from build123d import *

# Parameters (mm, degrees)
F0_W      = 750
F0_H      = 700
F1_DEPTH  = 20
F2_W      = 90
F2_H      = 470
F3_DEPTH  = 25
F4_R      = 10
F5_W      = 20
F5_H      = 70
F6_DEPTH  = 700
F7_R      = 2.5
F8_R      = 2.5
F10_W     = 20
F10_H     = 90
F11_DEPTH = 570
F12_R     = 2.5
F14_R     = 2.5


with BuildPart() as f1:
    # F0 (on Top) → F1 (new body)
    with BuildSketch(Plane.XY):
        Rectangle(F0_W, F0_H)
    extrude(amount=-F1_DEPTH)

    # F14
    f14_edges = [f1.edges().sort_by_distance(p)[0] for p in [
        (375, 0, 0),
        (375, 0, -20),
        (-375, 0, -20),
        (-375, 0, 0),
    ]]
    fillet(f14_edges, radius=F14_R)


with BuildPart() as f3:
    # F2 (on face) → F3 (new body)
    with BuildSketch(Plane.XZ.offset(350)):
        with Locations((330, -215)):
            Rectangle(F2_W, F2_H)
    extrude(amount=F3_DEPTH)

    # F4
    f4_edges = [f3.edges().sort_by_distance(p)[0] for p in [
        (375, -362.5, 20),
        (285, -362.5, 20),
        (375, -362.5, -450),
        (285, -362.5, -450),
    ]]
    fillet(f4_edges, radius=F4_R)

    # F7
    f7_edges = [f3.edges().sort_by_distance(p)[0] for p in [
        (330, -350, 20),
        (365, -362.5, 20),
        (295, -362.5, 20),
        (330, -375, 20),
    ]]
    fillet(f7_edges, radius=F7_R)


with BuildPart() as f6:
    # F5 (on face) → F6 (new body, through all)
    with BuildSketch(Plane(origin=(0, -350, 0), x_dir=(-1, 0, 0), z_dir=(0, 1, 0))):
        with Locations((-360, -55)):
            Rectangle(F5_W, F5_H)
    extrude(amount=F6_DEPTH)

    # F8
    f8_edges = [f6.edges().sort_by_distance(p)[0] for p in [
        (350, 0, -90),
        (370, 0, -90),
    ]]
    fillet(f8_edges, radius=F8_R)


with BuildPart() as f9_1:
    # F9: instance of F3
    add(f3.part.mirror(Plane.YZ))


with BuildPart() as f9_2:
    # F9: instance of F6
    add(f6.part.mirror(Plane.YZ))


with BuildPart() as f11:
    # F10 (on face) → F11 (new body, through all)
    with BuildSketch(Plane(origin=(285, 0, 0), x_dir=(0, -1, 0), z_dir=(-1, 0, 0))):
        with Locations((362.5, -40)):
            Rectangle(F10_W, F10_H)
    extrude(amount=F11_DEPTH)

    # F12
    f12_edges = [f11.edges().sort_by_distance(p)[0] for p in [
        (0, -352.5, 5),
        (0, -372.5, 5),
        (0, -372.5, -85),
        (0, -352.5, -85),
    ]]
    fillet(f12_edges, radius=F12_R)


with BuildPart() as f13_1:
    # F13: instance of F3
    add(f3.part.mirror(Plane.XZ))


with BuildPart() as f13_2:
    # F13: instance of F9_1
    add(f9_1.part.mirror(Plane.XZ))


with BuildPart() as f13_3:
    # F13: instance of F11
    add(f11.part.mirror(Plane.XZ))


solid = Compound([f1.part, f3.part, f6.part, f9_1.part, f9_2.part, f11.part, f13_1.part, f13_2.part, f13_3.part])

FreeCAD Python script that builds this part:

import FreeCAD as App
import Part
import Sketcher

V = App.Vector


def edges_at(feature, points):
    """Names of the edges that pass closest to the given points."""
    edges = feature.Shape.Edges
    near = lambda p: min(range(len(edges)), key=lambda i: edges[i].distToShape(Part.Vertex(*p))[0])
    return sorted({f"Edge{near(p) + 1}" for p in points})

doc = App.newDocument("Part")
body = doc.addObject("PartDesign::Body", "Body")

# Sketch on XY plane
sketch1 = body.newObject("Sketcher::SketchObject", "Sketch")
sketch1.AttachmentSupport = (doc.getObject("XY_Plane"), [""])
sketch1.MapMode = "FlatFace"
sketch1.addGeometry(Part.LineSegment(V(-375, 350, 0), V(-375, -350, 0)), False)
sketch1.addGeometry(Part.LineSegment(V(-375, -350, 0), V(375, -350, 0)), False)
sketch1.addGeometry(Part.LineSegment(V(375, -350, 0), V(375, 350, 0)), False)
sketch1.addGeometry(Part.LineSegment(V(375, 350, 0), V(-375, 350, 0)), False)
sketch1.addConstraint(Sketcher.Constraint("Coincident", 0, 2, 1, 1))
sketch1.addConstraint(Sketcher.Constraint("Coincident", 1, 2, 2, 1))
sketch1.addConstraint(Sketcher.Constraint("Coincident", 2, 2, 3, 1))
sketch1.addConstraint(Sketcher.Constraint("Coincident", 3, 2, 0, 1))
sketch1.addConstraint(Sketcher.Constraint("Vertical", 0))
sketch1.addConstraint(Sketcher.Constraint("Horizontal", 1))
sketch1.addConstraint(Sketcher.Constraint("Vertical", 2))
sketch1.addConstraint(Sketcher.Constraint("Horizontal", 3))
sketch1.addConstraint(Sketcher.Constraint("Symmetric", 0, 2, 2, 2, -1, 1))
sketch1.addConstraint(Sketcher.Constraint("DistanceX", 1, 1, 1, 2, 750.0))
sketch1.addConstraint(Sketcher.Constraint("DistanceY", 0, 2, 0, 1, 700.0))
pad1 = body.newObject("PartDesign::Pad", "Pad")
pad1.Profile = sketch1
pad1.Length = 20
pad1.Reversed = True
doc.recompute()

fillet = body.newObject("PartDesign::Fillet", "Fillet")
fillet.Base = (pad1, edges_at(pad1, [
    (375, 0, 0),
    (375, 0, -20),
    (-375, 0, -20),
    (-375, 0, 0),
]))
fillet.Radius = 2.5
body2 = doc.addObject("PartDesign::Body", "Body001")

# Sketch on XZ plane
sketch2 = body2.newObject("Sketcher::SketchObject", "Sketch001")
sketch2.AttachmentSupport = (doc.getObject("XZ_Plane001"), [""])
sketch2.MapMode = "FlatFace"
sketch2.AttachmentOffset = App.Placement(V(0, 0, 350), App.Rotation())
sketch2.addGeometry(Part.LineSegment(V(285, 20, 0), V(285, -450, 0)), False)
sketch2.addGeometry(Part.LineSegment(V(285, -450, 0), V(375, -450, 0)), False)
sketch2.addGeometry(Part.LineSegment(V(375, -450, 0), V(375, 20, 0)), False)
sketch2.addGeometry(Part.LineSegment(V(375, 20, 0), V(285, 20, 0)), False)
sketch2.addConstraint(Sketcher.Constraint("Coincident", 0, 2, 1, 1))
sketch2.addConstraint(Sketcher.Constraint("Coincident", 1, 2, 2, 1))
sketch2.addConstraint(Sketcher.Constraint("Coincident", 2, 2, 3, 1))
sketch2.addConstraint(Sketcher.Constraint("Coincident", 3, 2, 0, 1))
sketch2.addConstraint(Sketcher.Constraint("Vertical", 0))
sketch2.addConstraint(Sketcher.Constraint("Horizontal", 1))
sketch2.addConstraint(Sketcher.Constraint("Vertical", 2))
sketch2.addConstraint(Sketcher.Constraint("Horizontal", 3))
sketch2.addConstraint(Sketcher.Constraint("DistanceX", 1, 1, 1, 2, 90.0))
sketch2.addConstraint(Sketcher.Constraint("DistanceY", 0, 2, 0, 1, 470.0))
sketch2.addConstraint(Sketcher.Constraint("DistanceX", -1, 1, 0, 2, 285.0))
sketch2.addConstraint(Sketcher.Constraint("DistanceY", 0, 2, -1, 1, 450.0))
pad2 = body2.newObject("PartDesign::Pad", "Pad001")
pad2.Profile = sketch2
pad2.Length = 25
doc.recompute()

fillet2 = body2.newObject("PartDesign::Fillet", "Fillet001")
fillet2.Base = (pad2, edges_at(pad2, [
    (375, -362.5, 20),
    (285, -362.5, 20),
    (375, -362.5, -450),
    (285, -362.5, -450),
]))
fillet2.Radius = 10
doc.recompute()

fillet3 = body2.newObject("PartDesign::Fillet", "Fillet002")
fillet3.Base = (fillet2, edges_at(fillet2, [
    (330, -350, 20),
    (365, -362.5, 20),
    (295, -362.5, 20),
    (330, -375, 20),
]))
fillet3.Radius = 2.5
body3 = doc.addObject("PartDesign::Body", "Body002")

# Sketch on XZ plane
sketch3 = body3.newObject("Sketcher::SketchObject", "Sketch002")
sketch3.AttachmentSupport = (doc.getObject("XZ_Plane002"), [""])
sketch3.MapMode = "FlatFace"
sketch3.AttachmentOffset = App.Placement(V(0, 0, 350), App.Rotation())
sketch3.addGeometry(Part.LineSegment(V(370, -20, 0), V(370, -90, 0)), False)
sketch3.addGeometry(Part.LineSegment(V(370, -90, 0), V(350, -90, 0)), False)
sketch3.addGeometry(Part.LineSegment(V(350, -90, 0), V(350, -20, 0)), False)
sketch3.addGeometry(Part.LineSegment(V(350, -20, 0), V(370, -20, 0)), False)
sketch3.addConstraint(Sketcher.Constraint("Coincident", 0, 2, 1, 1))
sketch3.addConstraint(Sketcher.Constraint("Coincident", 1, 2, 2, 1))
sketch3.addConstraint(Sketcher.Constraint("Coincident", 2, 2, 3, 1))
sketch3.addConstraint(Sketcher.Constraint("Coincident", 3, 2, 0, 1))
sketch3.addConstraint(Sketcher.Constraint("Vertical", 0))
sketch3.addConstraint(Sketcher.Constraint("Horizontal", 1))
sketch3.addConstraint(Sketcher.Constraint("Vertical", 2))
sketch3.addConstraint(Sketcher.Constraint("Horizontal", 3))
sketch3.addConstraint(Sketcher.Constraint("DistanceX", 1, 2, 1, 1, 20.0))
sketch3.addConstraint(Sketcher.Constraint("DistanceY", 0, 2, 0, 1, 70.0))
sketch3.addConstraint(Sketcher.Constraint("DistanceX", -1, 1, 0, 2, 370.0))
sketch3.addConstraint(Sketcher.Constraint("DistanceY", 0, 2, -1, 1, 90.0))
pad3 = body3.newObject("PartDesign::Pad", "Pad002")
pad3.Profile = sketch3
pad3.Length = 700
pad3.Reversed = True
doc.recompute()

fillet4 = body3.newObject("PartDesign::Fillet", "Fillet003")
fillet4.Base = (pad3, edges_at(pad3, [(350, 0, -90), (370, 0, -90)]))
fillet4.Radius = 2.5
body4 = doc.addObject("PartDesign::Body", "Body003")
doc.recompute()

mirroring = doc.addObject("Part::Mirroring", "Mirroring")
mirroring.Source = body2
mirroring.Base = V(0, 0, 0)
mirroring.Normal = V(1, 0, 0)
body4.BaseFeature = mirroring
doc.recompute()
body5 = doc.addObject("PartDesign::Body", "Body004")
doc.recompute()

mirroring2 = doc.addObject("Part::Mirroring", "Mirroring001")
mirroring2.Source = body3
mirroring2.Base = V(0, 0, 0)
mirroring2.Normal = V(1, 0, 0)
body5.BaseFeature = mirroring2
doc.recompute()
body6 = doc.addObject("PartDesign::Body", "Body005")

# Sketch on YZ plane
sketch4 = body6.newObject("Sketcher::SketchObject", "Sketch003")
sketch4.AttachmentSupport = (doc.getObject("YZ_Plane005"), [""])
sketch4.MapMode = "FlatFace"
sketch4.AttachmentOffset = App.Placement(V(0, 0, 285), App.Rotation())
sketch4.addGeometry(Part.LineSegment(V(-352.5, 5, 0), V(-352.5, -85, 0)), False)
sketch4.addGeometry(Part.LineSegment(V(-352.5, -85, 0), V(-372.5, -85, 0)), False)
sketch4.addGeometry(Part.LineSegment(V(-372.5, -85, 0), V(-372.5, 5, 0)), False)
sketch4.addGeometry(Part.LineSegment(V(-372.5, 5, 0), V(-352.5, 5, 0)), False)
sketch4.addConstraint(Sketcher.Constraint("Coincident", 0, 2, 1, 1))
sketch4.addConstraint(Sketcher.Constraint("Coincident", 1, 2, 2, 1))
sketch4.addConstraint(Sketcher.Constraint("Coincident", 2, 2, 3, 1))
sketch4.addConstraint(Sketcher.Constraint("Coincident", 3, 2, 0, 1))
sketch4.addConstraint(Sketcher.Constraint("Vertical", 0))
sketch4.addConstraint(Sketcher.Constraint("Horizontal", 1))
sketch4.addConstraint(Sketcher.Constraint("Vertical", 2))
sketch4.addConstraint(Sketcher.Constraint("Horizontal", 3))
sketch4.addConstraint(Sketcher.Constraint("DistanceX", 1, 2, 1, 1, 20.0))
sketch4.addConstraint(Sketcher.Constraint("DistanceY", 0, 2, 0, 1, 90.0))
sketch4.addConstraint(Sketcher.Constraint("DistanceY", 0, 2, -1, 1, 85.0))
sketch4.addConstraint(Sketcher.Constraint("DistanceX", 0, 2, -1, 1, 352.5))
pad4 = body6.newObject("PartDesign::Pad", "Pad003")
pad4.Profile = sketch4
pad4.Length = 570
pad4.Reversed = True
doc.recompute()

fillet5 = body6.newObject("PartDesign::Fillet", "Fillet004")
fillet5.Base = (pad4, edges_at(pad4, [
    (0, -352.5, 5),
    (0, -372.5, 5),
    (0, -372.5, -85),
    (0, -352.5, -85),
]))
fillet5.Radius = 2.5
body7 = doc.addObject("PartDesign::Body", "Body006")
doc.recompute()

mirroring3 = doc.addObject("Part::Mirroring", "Mirroring002")
mirroring3.Source = body2
mirroring3.Base = V(0, 0, 0)
mirroring3.Normal = V(0, -1, 0)
body7.BaseFeature = mirroring3
doc.recompute()
body8 = doc.addObject("PartDesign::Body", "Body007")
doc.recompute()

mirroring4 = doc.addObject("Part::Mirroring", "Mirroring003")
mirroring4.Source = body4
mirroring4.Base = V(0, 0, 0)
mirroring4.Normal = V(0, -1, 0)
body8.BaseFeature = mirroring4
doc.recompute()
body9 = doc.addObject("PartDesign::Body", "Body008")
doc.recompute()

mirroring5 = doc.addObject("Part::Mirroring", "Mirroring004")
mirroring5.Source = body6
mirroring5.Base = V(0, 0, 0)
mirroring5.Normal = V(0, -1, 0)
body9.BaseFeature = mirroring5
doc.recompute()
mirroring.Visibility = False
mirroring2.Visibility = False
mirroring3.Visibility = False
mirroring4.Visibility = False
mirroring5.Visibility = False

doc.recompute()
